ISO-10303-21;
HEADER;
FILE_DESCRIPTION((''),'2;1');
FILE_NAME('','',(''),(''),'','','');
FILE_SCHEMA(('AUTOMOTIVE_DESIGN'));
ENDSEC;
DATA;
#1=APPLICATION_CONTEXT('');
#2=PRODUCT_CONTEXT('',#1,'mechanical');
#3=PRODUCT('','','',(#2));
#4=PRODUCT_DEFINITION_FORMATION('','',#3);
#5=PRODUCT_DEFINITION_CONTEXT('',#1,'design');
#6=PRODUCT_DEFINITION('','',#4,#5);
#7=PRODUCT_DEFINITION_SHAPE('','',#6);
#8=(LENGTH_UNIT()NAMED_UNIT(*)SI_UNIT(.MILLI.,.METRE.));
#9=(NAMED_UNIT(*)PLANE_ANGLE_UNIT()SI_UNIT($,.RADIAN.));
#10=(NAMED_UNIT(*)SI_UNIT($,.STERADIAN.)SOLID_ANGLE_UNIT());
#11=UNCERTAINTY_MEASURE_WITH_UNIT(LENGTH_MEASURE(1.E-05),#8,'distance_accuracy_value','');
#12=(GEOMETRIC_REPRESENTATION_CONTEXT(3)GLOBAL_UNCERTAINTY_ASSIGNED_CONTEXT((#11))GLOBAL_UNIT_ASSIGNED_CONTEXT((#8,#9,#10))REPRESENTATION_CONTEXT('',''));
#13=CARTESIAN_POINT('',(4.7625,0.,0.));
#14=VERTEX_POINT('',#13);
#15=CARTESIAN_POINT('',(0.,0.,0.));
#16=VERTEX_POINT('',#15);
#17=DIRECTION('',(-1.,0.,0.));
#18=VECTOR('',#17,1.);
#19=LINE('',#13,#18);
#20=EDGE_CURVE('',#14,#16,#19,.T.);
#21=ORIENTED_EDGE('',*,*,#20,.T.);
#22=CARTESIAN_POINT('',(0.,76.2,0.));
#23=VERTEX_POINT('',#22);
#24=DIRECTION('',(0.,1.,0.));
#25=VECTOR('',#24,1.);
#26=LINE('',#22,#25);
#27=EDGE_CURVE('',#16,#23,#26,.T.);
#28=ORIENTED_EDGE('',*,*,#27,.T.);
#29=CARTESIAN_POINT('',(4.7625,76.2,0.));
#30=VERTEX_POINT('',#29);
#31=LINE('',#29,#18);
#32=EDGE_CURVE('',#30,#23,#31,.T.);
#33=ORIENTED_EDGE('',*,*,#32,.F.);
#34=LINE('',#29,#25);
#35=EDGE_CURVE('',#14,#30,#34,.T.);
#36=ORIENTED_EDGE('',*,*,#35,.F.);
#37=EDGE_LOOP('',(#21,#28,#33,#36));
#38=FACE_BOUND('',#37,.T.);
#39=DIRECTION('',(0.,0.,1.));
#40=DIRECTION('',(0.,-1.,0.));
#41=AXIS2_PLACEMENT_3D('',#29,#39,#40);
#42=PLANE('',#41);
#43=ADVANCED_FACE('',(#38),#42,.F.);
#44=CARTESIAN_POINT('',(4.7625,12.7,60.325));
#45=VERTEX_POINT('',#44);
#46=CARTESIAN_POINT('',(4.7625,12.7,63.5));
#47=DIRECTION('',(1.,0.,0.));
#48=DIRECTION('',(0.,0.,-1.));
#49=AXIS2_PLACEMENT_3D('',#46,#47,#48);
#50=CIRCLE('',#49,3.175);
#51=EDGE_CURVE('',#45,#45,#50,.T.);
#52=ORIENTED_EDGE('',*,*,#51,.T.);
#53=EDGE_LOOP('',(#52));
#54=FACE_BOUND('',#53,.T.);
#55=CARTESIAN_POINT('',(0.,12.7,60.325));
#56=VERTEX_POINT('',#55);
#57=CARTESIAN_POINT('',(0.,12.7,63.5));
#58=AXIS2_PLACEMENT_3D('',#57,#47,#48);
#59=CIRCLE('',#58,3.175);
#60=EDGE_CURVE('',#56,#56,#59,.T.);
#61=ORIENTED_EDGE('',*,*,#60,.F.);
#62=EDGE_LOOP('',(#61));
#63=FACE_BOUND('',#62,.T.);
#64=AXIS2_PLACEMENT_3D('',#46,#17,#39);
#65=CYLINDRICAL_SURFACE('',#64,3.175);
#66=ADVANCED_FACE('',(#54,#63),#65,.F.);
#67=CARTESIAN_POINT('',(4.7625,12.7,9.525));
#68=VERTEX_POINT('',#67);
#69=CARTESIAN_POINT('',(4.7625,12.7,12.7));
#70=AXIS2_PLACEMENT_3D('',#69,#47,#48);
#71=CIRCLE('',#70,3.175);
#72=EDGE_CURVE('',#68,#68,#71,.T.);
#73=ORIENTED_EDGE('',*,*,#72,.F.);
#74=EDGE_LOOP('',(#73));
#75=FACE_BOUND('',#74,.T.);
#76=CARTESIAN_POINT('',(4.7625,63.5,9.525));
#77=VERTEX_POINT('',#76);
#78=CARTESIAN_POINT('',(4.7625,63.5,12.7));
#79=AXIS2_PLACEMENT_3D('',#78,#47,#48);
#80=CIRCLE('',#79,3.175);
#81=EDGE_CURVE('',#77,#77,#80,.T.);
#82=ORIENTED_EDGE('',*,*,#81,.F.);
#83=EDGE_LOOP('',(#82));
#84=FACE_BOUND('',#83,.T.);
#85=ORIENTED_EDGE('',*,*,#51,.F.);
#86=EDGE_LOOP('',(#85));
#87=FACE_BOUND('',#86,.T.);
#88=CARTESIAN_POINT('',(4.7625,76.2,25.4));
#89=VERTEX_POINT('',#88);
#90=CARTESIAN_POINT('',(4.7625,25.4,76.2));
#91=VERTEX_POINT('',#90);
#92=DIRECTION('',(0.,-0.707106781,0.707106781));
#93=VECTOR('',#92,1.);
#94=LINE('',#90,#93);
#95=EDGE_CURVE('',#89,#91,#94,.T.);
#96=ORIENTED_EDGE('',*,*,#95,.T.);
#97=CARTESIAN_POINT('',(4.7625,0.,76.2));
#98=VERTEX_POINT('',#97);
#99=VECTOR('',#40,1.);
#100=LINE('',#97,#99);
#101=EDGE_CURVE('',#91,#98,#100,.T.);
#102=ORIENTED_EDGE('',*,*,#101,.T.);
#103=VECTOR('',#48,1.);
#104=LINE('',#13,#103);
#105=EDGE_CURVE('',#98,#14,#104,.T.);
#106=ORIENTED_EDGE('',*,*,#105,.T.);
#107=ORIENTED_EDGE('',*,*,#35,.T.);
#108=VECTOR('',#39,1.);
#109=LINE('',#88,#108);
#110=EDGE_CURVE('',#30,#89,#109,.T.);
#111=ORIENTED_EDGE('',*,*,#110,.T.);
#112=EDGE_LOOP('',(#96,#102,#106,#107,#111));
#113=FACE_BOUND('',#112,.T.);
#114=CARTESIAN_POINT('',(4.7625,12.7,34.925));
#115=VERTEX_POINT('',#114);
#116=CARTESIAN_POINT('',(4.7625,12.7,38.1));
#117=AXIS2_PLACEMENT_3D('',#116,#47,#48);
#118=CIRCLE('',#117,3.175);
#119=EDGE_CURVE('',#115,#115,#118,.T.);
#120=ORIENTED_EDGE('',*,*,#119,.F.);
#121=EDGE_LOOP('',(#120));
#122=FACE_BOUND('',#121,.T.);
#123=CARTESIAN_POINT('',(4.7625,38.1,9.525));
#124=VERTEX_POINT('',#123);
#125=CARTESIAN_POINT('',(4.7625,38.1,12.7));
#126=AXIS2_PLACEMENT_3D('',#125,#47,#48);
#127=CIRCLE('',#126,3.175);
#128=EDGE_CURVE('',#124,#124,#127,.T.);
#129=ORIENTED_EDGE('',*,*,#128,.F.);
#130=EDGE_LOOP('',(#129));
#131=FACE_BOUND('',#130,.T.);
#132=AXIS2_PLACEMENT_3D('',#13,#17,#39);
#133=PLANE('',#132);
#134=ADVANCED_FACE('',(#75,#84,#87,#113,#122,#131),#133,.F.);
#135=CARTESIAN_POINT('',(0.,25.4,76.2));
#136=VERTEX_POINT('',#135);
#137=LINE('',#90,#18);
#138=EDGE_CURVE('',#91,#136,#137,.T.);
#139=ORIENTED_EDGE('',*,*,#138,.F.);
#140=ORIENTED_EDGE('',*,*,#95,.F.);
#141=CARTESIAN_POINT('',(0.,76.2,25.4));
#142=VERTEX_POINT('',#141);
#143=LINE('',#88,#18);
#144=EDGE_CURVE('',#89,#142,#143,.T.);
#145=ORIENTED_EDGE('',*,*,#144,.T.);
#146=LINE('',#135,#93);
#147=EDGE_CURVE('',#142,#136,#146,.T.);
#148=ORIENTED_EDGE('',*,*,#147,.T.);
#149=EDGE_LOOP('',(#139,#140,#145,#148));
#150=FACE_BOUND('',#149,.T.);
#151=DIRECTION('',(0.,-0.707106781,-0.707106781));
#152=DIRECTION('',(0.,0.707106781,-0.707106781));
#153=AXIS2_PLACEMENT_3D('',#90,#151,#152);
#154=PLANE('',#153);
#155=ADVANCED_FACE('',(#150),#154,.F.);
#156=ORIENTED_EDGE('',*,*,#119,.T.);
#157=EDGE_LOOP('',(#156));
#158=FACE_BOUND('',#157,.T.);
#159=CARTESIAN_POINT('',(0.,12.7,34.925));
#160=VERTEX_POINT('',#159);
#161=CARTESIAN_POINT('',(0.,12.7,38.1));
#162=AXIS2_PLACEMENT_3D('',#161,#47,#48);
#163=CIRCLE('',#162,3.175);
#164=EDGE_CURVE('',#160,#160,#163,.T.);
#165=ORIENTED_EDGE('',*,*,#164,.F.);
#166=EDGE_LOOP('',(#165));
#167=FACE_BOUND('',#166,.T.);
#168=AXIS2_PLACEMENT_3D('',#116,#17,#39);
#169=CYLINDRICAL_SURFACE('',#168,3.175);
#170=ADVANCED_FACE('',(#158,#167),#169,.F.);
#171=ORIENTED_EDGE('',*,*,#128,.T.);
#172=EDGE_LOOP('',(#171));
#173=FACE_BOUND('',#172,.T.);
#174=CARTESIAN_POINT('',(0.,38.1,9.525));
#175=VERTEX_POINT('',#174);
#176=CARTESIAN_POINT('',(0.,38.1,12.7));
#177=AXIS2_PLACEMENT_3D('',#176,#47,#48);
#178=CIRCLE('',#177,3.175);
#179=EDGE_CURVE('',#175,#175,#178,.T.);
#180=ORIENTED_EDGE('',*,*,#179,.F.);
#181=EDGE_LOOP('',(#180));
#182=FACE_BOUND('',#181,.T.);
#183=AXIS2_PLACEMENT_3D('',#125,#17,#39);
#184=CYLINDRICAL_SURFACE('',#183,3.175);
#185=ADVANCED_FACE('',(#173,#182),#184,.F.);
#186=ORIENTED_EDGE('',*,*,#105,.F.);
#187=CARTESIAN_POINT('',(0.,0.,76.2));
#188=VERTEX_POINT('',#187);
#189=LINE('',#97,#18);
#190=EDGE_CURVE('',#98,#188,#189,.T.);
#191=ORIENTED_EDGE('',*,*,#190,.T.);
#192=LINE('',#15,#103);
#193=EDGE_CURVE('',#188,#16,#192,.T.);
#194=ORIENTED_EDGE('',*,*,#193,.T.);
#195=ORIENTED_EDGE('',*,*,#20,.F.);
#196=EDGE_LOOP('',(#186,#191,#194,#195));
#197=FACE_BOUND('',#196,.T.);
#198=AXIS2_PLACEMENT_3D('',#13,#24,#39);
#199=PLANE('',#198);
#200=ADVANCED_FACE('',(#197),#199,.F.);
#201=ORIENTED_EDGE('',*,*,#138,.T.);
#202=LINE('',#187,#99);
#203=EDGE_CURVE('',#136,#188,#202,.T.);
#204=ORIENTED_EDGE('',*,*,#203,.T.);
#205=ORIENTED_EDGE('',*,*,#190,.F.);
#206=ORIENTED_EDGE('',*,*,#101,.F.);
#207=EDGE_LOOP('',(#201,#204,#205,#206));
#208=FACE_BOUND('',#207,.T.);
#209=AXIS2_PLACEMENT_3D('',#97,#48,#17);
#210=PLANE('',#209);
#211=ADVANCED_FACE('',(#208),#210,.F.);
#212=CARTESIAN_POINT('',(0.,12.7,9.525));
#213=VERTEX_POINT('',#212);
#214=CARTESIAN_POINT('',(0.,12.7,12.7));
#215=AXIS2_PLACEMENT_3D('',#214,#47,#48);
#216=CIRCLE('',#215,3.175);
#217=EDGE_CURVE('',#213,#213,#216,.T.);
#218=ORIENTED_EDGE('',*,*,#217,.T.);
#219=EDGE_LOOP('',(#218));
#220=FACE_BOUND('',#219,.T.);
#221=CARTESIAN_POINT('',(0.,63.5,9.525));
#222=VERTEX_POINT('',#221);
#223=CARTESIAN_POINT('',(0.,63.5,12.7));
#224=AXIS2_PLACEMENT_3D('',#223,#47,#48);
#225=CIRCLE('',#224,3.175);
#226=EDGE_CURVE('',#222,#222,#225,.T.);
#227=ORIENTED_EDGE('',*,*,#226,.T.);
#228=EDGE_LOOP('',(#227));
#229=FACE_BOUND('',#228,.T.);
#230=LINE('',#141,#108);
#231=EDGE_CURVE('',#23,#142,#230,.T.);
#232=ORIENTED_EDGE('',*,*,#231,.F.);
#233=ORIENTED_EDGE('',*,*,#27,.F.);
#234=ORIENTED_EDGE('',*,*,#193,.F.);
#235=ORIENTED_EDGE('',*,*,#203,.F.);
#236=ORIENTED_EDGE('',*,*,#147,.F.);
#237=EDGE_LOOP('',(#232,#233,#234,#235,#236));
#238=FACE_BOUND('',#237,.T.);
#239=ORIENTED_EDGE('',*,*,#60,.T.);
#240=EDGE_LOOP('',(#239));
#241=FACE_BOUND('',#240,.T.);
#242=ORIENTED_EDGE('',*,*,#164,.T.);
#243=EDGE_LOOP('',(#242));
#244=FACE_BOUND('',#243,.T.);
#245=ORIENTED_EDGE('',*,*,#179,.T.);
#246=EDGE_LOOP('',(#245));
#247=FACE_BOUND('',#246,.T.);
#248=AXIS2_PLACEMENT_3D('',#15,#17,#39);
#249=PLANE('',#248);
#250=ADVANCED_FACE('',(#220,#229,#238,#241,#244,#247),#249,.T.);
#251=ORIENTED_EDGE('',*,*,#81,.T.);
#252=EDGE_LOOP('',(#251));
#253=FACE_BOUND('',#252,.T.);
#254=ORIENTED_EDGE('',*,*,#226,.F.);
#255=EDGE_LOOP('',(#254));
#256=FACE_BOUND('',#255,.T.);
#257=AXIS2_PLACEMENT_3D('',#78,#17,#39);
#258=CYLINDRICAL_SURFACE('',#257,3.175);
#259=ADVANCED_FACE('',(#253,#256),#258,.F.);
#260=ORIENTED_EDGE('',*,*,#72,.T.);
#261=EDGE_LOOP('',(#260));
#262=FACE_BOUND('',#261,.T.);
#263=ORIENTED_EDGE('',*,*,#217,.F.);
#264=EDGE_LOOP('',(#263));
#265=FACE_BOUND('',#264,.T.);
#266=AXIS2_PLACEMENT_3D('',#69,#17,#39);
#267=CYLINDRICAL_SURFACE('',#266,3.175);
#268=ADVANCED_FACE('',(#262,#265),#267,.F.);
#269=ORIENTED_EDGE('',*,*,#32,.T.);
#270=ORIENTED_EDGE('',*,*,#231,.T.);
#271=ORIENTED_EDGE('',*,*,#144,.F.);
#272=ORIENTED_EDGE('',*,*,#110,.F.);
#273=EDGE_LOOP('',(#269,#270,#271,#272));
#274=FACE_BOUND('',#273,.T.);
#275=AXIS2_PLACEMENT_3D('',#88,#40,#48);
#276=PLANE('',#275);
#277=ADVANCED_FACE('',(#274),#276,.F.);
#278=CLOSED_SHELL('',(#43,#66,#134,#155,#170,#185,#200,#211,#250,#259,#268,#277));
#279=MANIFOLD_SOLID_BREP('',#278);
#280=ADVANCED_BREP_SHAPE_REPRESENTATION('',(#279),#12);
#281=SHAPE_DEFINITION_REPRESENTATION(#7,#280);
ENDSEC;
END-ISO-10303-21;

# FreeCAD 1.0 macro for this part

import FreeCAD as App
import Part
import Sketcher

V = App.Vector
Q = App.Units.Quantity


def add_polygon(sketch, points):
    """Adds a closed chain of lines whose ends are joined by coincident constraints."""
    first, n = sketch.GeometryCount, len(points)
    for a, b in zip(points, points[1:] + points[:1]):
        sketch.addGeometry(Part.LineSegment(App.Vector(*a, 0), App.Vector(*b, 0)), False)
    for i in range(n):
        sketch.addConstraint(Sketcher.Constraint("Coincident", first + i, 2, first + (i + 1) % n, 1))

doc = App.newDocument("Part")
body = doc.addObject("PartDesign::Body", "Body")

# Sketch on YZ plane
sketch1 = doc.addObject("Sketcher::SketchObject", "Sketch")
body.addObject(sketch1)
sketch1.AttachmentSupport = (doc.YZ_Plane, [""])
sketch1.MapMode = "FlatFace"
add_polygon(sketch1, [(0, 76.2), (0, 0), (76.2, 0), (76.2, 25.4), (25.4, 76.2)])  # lines 0-4
sketch1.addGeometry(Part.Circle(V(12.7, 12.7, 0), V(0, 0, 1), 3.175), False)  # 5
sketch1.addGeometry(Part.Circle(V(12.7, 38.1, 0), V(0, 0, 1), 3.175), False)  # 6
sketch1.addGeometry(Part.Circle(V(12.7, 63.5, 0), V(0, 0, 1), 3.175), False)  # 7
sketch1.addGeometry(Part.Circle(V(38.1, 12.7, 0), V(0, 0, 1), 3.175), False)  # 8
sketch1.addGeometry(Part.Circle(V(63.5, 12.7, 0), V(0, 0, 1), 3.175), False)  # 9
sketch1.addConstraint([
    Sketcher.Constraint("Vertical", 0),
    Sketcher.Constraint("Horizontal", 1),
    Sketcher.Constraint("Vertical", 2),
    Sketcher.Constraint("Horizontal", 4),
    Sketcher.Constraint("Coincident", 0, 2, -1, 1),
    Sketcher.Constraint("Equal", 5, 6),
    Sketcher.Constraint("Equal", 6, 7),
    Sketcher.Constraint("Equal", 7, 8),
    Sketcher.Constraint("Equal", 8, 9),
    Sketcher.Constraint("Horizontal", 5, 3, 8, 3),
    Sketcher.Constraint("Horizontal", 8, 3, 9, 3),
    Sketcher.Constraint("Vertical", 5, 3, 6, 3),
    Sketcher.Constraint("Vertical", 6, 3, 7, 3),
    Sketcher.Constraint("Equal", 1, 0),
    Sketcher.Constraint("Equal", 4, 2),
    Sketcher.Constraint("Diameter", 5, Q("0.25 in")),
    Sketcher.Constraint("DistanceX", 1, 1, 1, 2, Q("3 in")),
    Sketcher.Constraint("DistanceX", 4, 2, 4, 1, Q("1 in")),
    Sketcher.Constraint("DistanceY", 5, 3, 6, 3, Q("1 in")),
    Sketcher.Constraint("DistanceY", 6, 3, 7, 3, Q("1 in")),
    Sketcher.Constraint("DistanceX", 5, 3, 8, 3, Q("1 in")),
    Sketcher.Constraint("DistanceX", 8, 3, 9, 3, Q("1 in")),
    Sketcher.Constraint("DistanceX", -1, 1, 5, 3, Q("0.5 in")),
    Sketcher.Constraint("DistanceY", -1, 1, 5, 3, Q("0.5 in")),
])
pad1 = doc.addObject("PartDesign::Pad", "Pad")
body.addObject(pad1)
pad1.Profile = sketch1
pad1.Length = Q("0.1875 in")

doc.recompute()
